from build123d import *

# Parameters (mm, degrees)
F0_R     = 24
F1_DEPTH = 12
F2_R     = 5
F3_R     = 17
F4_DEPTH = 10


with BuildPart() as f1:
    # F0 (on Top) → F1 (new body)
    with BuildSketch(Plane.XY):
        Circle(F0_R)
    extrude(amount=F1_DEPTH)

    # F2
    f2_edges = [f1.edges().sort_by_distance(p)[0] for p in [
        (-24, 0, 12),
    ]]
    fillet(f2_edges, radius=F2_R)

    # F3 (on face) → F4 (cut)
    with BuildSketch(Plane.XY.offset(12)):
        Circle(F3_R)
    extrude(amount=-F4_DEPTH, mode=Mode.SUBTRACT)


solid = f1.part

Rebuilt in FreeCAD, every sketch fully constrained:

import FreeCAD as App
import Part
import Sketcher
from FreeCAD import Vector


def edges_at(feature, points):
    """Names of the edges that pass closest to the given points."""
    edges = feature.Shape.Edges
    near = lambda p: min(range(len(edges)), key=lambda i: edges[i].distToShape(Part.Vertex(*p))[0])
    return sorted({f"Edge{near(p) + 1}" for p in points})

doc = App.newDocument("Part")
body = doc.addObject("PartDesign::Body", "Body")

sketch1 = body.newObject("Sketcher::SketchObject", "Sketch")
sketch1.AttachmentSupport = (doc.getObject("XY_Plane"), [""])
sketch1.MapMode = "FlatFace"
sketch1.addGeometry(Part.Circle(Vector(0, 0, 0), Vector(0, 0, 1), 24), False)
sketch1.addConstraint([
    Sketcher.Constraint("Coincident", 0, 3, -1, 1),
    Sketcher.Constraint("Diameter", 0, 48.0),
])
pad1 = body.newObject("PartDesign::Pad", "Pad")
pad1.Profile = sketch1
pad1.Length = 12
doc.recompute()

fillet = body.newObject("PartDesign::Fillet", "Fillet")
fillet.Base = (pad1, edges_at(pad1, [(-24, 0, 12)]))
fillet.Radius = 5

sketch2 = body.newObject("Sketcher::SketchObject", "Sketch001")
sketch2.AttachmentSupport = (doc.getObject("XY_Plane"), [""])
sketch2.MapMode = "FlatFace"
sketch2.AttachmentOffset = App.Placement(Vector(0, 0, 12), App.Rotation())
sketch2.addGeometry(Part.Circle(Vector(0, 0, 0), Vector(0, 0, 1), 17), False)
sketch2.addConstraint([
    Sketcher.Constraint("Coincident", 0, 3, -1, 1),
    Sketcher.Constraint("Diameter", 0, 34.0),
])
pocket1 = body.newObject("PartDesign::Pocket", "Pocket")
pocket1.Profile = sketch2
pocket1.Length = 10

doc.recompute()
